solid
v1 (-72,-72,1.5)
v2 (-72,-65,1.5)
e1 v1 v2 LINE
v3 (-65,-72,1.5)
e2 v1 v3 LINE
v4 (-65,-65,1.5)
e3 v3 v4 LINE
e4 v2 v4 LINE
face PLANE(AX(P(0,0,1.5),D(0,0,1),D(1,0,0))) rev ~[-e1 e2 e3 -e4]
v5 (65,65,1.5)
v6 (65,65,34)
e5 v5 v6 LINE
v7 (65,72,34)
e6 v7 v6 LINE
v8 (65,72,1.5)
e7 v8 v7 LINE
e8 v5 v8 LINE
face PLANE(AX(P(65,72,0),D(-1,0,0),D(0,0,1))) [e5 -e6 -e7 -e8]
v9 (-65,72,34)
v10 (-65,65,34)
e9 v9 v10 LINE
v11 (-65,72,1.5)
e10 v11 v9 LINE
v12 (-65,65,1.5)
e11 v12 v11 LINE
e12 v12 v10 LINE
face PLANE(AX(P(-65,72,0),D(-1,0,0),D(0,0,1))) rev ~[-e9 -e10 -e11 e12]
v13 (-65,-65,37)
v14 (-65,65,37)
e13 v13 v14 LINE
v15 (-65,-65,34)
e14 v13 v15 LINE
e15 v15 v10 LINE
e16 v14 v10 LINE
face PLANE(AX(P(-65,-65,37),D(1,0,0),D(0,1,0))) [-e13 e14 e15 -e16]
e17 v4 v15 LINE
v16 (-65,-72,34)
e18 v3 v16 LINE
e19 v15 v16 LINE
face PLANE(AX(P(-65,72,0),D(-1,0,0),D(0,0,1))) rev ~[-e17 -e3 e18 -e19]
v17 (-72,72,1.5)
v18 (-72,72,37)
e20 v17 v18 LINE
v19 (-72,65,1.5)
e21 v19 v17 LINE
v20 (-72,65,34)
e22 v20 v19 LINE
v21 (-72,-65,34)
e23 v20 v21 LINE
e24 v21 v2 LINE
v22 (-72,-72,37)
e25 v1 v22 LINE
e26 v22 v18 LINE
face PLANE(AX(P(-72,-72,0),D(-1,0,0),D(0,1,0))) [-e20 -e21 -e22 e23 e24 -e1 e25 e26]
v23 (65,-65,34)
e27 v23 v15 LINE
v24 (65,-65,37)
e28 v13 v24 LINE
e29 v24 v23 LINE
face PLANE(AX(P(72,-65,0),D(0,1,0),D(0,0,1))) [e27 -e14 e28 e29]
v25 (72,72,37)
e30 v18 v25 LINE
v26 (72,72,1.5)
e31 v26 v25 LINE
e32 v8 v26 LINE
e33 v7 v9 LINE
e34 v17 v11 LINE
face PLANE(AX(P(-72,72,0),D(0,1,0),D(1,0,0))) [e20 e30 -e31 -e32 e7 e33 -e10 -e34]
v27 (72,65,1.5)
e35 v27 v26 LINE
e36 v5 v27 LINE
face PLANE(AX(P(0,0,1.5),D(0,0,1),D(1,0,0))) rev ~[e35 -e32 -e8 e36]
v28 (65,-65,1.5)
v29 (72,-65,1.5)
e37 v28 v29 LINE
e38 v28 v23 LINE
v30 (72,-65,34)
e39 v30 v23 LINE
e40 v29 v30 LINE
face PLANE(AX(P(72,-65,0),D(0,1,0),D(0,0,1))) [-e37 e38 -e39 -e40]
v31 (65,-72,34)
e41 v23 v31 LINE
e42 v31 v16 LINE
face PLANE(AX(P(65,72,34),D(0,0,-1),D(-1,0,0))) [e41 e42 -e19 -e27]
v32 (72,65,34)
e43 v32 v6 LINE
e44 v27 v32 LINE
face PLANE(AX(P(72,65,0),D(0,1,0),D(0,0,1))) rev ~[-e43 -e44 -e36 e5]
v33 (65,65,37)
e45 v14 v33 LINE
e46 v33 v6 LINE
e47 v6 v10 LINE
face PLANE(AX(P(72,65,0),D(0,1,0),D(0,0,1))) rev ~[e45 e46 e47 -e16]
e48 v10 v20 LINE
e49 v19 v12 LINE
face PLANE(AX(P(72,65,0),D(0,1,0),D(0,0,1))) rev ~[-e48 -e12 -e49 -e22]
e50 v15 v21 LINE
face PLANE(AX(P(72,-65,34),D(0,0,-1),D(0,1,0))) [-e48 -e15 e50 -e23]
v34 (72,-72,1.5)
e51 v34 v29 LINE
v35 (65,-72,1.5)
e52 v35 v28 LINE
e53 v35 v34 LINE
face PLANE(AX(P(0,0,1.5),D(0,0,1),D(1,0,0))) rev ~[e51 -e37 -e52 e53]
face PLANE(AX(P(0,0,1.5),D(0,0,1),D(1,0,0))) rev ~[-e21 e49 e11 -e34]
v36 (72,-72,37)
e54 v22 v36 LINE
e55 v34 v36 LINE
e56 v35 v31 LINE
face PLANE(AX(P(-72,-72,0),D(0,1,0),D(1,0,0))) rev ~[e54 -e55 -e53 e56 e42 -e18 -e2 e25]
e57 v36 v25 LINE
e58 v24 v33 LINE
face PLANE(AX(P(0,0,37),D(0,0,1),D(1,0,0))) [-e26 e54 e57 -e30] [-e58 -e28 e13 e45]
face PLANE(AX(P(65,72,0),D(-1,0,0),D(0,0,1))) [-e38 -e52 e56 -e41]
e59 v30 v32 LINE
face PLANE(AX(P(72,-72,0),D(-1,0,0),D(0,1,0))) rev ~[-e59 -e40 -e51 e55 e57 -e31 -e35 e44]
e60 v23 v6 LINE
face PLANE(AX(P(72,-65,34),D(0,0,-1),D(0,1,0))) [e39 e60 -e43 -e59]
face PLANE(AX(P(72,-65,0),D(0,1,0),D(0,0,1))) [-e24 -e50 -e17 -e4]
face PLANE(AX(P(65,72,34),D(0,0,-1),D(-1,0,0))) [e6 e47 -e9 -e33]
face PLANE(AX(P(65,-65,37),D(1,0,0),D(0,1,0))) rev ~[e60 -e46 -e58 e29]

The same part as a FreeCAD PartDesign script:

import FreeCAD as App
import Part
import Sketcher
from FreeCAD import Vector

doc = App.newDocument("Part")
body = doc.addObject("PartDesign::Body", "Body")

# Sketch on XY plane
sketch1 = body.newObject("Sketcher::SketchObject", "Sketch")
sketch1.AttachmentSupport = (doc.getObject("XY_Plane"), [""])
sketch1.MapMode = "FlatFace"
sketch1.addGeometry([
    Part.LineSegment(Vector(-72, 72, 0), Vector(-72, -72, 0)),
    Part.LineSegment(Vector(-72, -72, 0), Vector(72, -72, 0)),
    Part.LineSegment(Vector(72, -72, 0), Vector(72, 72, 0)),
    Part.LineSegment(Vector(72, 72, 0), Vector(-72, 72, 0)),
], False)
sketch1.addConstraint([
    Sketcher.Constraint("Coincident", 0, 2, 1, 1),
    Sketcher.Constraint("Coincident", 1, 2, 2, 1),
    Sketcher.Constraint("Coincident", 2, 2, 3, 1),
    Sketcher.Constraint("Coincident", 3, 2, 0, 1),
    Sketcher.Constraint("Vertical", 0),
    Sketcher.Constraint("Horizontal", 1),
    Sketcher.Constraint("Vertical", 2),
    Sketcher.Constraint("Horizontal", 3),
    Sketcher.Constraint("Symmetric", 0, 2, 2, 2, -1, 1),
    Sketcher.Constraint("Equal", 3, 0),
    Sketcher.Constraint("DistanceX", 1, 1, 1, 2, 144.0),
])
pad1 = body.newObject("PartDesign::Pad", "Pad")
pad1.Profile = sketch1
pad1.Length = 37

# Sketch on XY plane
sketch2 = body.newObject("Sketcher::SketchObject", "Sketch001")
sketch2.AttachmentSupport = (doc.getObject("XY_Plane"), [""])
sketch2.MapMode = "FlatFace"
sketch2.AttachmentOffset = App.Placement(Vector(0, 0, 37), App.Rotation())
sketch2.addGeometry([
    Part.LineSegment(Vector(-65, 65, 0), Vector(-65, -65, 0)),
    Part.LineSegment(Vector(-65, -65, 0), Vector(65, -65, 0)),
    Part.LineSegment(Vector(65, -65, 0), Vector(65, 65, 0)),
    Part.LineSegment(Vector(65, 65, 0), Vector(-65, 65, 0)),
], False)
sketch2.addConstraint([
    Sketcher.Constraint("Coincident", 0, 2, 1, 1),
    Sketcher.Constraint("Coincident", 1, 2, 2, 1),
    Sketcher.Constraint("Coincident", 2, 2, 3, 1),
    Sketcher.Constraint("Coincident", 3, 2, 0, 1),
    Sketcher.Constraint("Vertical", 0),
    Sketcher.Constraint("Horizontal", 1),
    Sketcher.Constraint("Vertical", 2),
    Sketcher.Constraint("Horizontal", 3),
    Sketcher.Constraint("Symmetric", 0, 2, 2, 2, -1, 1),
    Sketcher.Constraint("Equal", 3, 0),
    Sketcher.Constraint("DistanceX", 1, 1, 1, 2, 130.0),
])
pocket1 = body.newObject("PartDesign::Pocket", "Pocket")
pocket1.Profile = sketch2
pocket1.Type = "ThroughAll"

# Sketch on YZ plane
sketch3 = body.newObject("Sketcher::SketchObject", "Sketch002")
sketch3.AttachmentSupport = (doc.getObject("YZ_Plane"), [""])
sketch3.MapMode = "FlatFace"
sketch3.AttachmentOffset = App.Placement(Vector(0, 0, 72), App.Rotation())
sketch3.addGeometry([
    Part.LineSegment(Vector(-65, 34, 0), Vector(-65, 0, 0)),
    Part.LineSegment(Vector(-65, 0, 0), Vector(65, 0, 0)),
    Part.LineSegment(Vector(65, 0, 0), Vector(65, 34, 0)),
    Part.LineSegment(Vector(65, 34, 0), Vector(-65, 34, 0)),
], False)
sketch3.addConstraint([
    Sketcher.Constraint("Coincident", 0, 2, 1, 1),
    Sketcher.Constraint("Coincident", 1, 2, 2, 1),
    Sketcher.Constraint("Coincident", 2, 2, 3, 1),
    Sketcher.Constraint("Coincident", 3, 2, 0, 1),
    Sketcher.Constraint("Vertical", 0),
    Sketcher.Constraint("Horizontal", 1),
    Sketcher.Constraint("Vertical", 2),
    Sketcher.Constraint("Horizontal", 3),
    Sketcher.Constraint("Symmetric", 0, 2, 1, 2, -1, 1),
    Sketcher.Constraint("DistanceX", 1, 1, 1, 2, 130.0),
    Sketcher.Constraint("DistanceY", 0, 2, 0, 1, 34.0),
])
pocket2 = body.newObject("PartDesign::Pocket", "Pocket001")
pocket2.Profile = sketch3
pocket2.Type = "ThroughAll"

# Sketch on XZ plane
sketch4 = body.newObject("Sketcher::SketchObject", "Sketch003")
sketch4.AttachmentSupport = (doc.getObject("XZ_Plane"), [""])
sketch4.MapMode = "FlatFace"
sketch4.AttachmentOffset = App.Placement(Vector(0, 0, -72), App.Rotation())
sketch4.addGeometry([
    Part.LineSegment(Vector(65, 34, 0), Vector(65, 0, 0)),
    Part.LineSegment(Vector(65, 0, 0), Vector(-65, 0, 0)),
    Part.LineSegment(Vector(-65, 0, 0), Vector(-65, 34, 0)),
    Part.LineSegment(Vector(-65, 34, 0), Vector(65, 34, 0)),
], False)
sketch4.addConstraint([
    Sketcher.Constraint("Coincident", 0, 2, 1, 1),
    Sketcher.Constraint("Coincident", 1, 2, 2, 1),
    Sketcher.Constraint("Coincident", 2, 2, 3, 1),
    Sketcher.Constraint("Coincident", 3, 2, 0, 1),
    Sketcher.Constraint("Vertical", 0),
    Sketcher.Constraint("Horizontal", 1),
    Sketcher.Constraint("Vertical", 2),
    Sketcher.Constraint("Horizontal", 3),
    Sketcher.Constraint("Symmetric", 0, 2, 1, 2, -1, 1),
    Sketcher.Constraint("DistanceX", 1, 2, 1, 1, 130.0),
    Sketcher.Constraint("DistanceY", 0, 2, 0, 1, 34.0),
])
pocket3 = body.newObject("PartDesign::Pocket", "Pocket002")
pocket3.Profile = sketch4
pocket3.Type = "ThroughAll"
pocket3.Reversed = True

# Sketch on XY plane
sketch5 = body.newObject("Sketcher::SketchObject", "Sketch004")
sketch5.AttachmentSupport = (doc.getObject("XY_Plane"), [""])
sketch5.MapMode = "FlatFace"
sketch5.addGeometry([
    Part.LineSegment(Vector(-72, 72, 0), Vector(-72, -72, 0)),
    Part.LineSegment(Vector(-72, -72, 0), Vector(72, -72, 0)),
    Part.LineSegment(Vector(72, -72, 0), Vector(72, 72, 0)),
    Part.LineSegment(Vector(72, 72, 0), Vector(-72, 72, 0)),
], False)
sketch5.addConstraint([
    Sketcher.Constraint("Coincident", 0, 2, 1, 1),
    Sketcher.Constraint("Coincident", 1, 2, 2, 1),
    Sketcher.Constraint("Coincident", 2, 2, 3, 1),
    Sketcher.Constraint("Coincident", 3, 2, 0, 1),
    Sketcher.Constraint("Vertical", 0),
    Sketcher.Constraint("Horizontal", 1),
    Sketcher.Constraint("Vertical", 2),
    Sketcher.Constraint("Horizontal", 3),
    Sketcher.Constraint("Symmetric", 0, 2, 2, 2, -1, 1),
    Sketcher.Constraint("Equal", 3, 0),
    Sketcher.Constraint("DistanceX", 1, 1, 1, 2, 144.0),
])
pocket4 = body.newObject("PartDesign::Pocket", "Pocket003")
pocket4.Profile = sketch5
pocket4.Length = 3
pocket4.Midplane = True

doc.recompute()
